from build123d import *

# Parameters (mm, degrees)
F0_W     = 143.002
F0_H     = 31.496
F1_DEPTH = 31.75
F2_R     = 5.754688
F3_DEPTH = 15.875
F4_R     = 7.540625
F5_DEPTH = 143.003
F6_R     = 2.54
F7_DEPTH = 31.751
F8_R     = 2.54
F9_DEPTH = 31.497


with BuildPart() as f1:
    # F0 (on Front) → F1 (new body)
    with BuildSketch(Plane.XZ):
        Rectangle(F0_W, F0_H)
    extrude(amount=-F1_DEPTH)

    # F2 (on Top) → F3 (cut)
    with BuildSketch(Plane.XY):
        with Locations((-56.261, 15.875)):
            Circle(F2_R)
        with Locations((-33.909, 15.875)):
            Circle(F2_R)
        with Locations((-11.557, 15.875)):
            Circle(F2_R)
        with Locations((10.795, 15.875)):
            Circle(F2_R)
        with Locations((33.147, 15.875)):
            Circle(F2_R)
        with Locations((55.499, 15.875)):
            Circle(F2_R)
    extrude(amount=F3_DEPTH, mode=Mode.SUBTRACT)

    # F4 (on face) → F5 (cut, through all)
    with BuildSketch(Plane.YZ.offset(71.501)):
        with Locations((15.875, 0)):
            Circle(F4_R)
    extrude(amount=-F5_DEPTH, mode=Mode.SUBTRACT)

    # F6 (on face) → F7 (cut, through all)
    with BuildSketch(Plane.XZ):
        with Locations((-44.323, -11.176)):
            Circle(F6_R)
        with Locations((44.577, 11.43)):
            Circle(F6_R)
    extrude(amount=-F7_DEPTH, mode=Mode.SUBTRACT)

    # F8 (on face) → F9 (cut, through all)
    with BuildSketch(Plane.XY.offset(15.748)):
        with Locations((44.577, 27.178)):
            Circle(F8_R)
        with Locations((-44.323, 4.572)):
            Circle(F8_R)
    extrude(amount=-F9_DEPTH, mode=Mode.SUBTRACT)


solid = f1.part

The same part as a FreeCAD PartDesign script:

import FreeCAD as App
import Part
import Sketcher
from FreeCAD import Vector
Q = App.Units.Quantity


def add_polygon(sketch, points):
    """Adds a closed chain of lines whose ends are joined by coincident constraints."""
    first, n = sketch.GeometryCount, len(points)
    for a, b in zip(points, points[1:] + points[:1]):
        sketch.addGeometry(Part.LineSegment(App.Vector(*a, 0), App.Vector(*b, 0)), False)
    for i in range(n):
        sketch.addConstraint(Sketcher.Constraint("Coincident", first + i, 2, first + (i + 1) % n, 1))

doc = App.newDocument("Part")
body = doc.addObject("PartDesign::Body", "Body")

sketch1 = doc.addObject("Sketcher::SketchObject", "Sketch")
body.addObject(sketch1)
sketch1.AttachmentSupport = (doc.XZ_Plane, [""])
sketch1.MapMode = "FlatFace"
add_polygon(sketch1, [(-72, 16), (-72, -16), (72, -16), (72, 16)])
sketch1.addConstraint([
    Sketcher.Constraint("Vertical", 0),
    Sketcher.Constraint("Horizontal", 1),
    Sketcher.Constraint("Vertical", 2),
    Sketcher.Constraint("Horizontal", 3),
    Sketcher.Constraint("Symmetric", 0, 2, 2, 2, -1, 1),
    Sketcher.Constraint("DistanceX", 1, 1, 1, 2, Q("5.63 in")),
    Sketcher.Constraint("DistanceY", 0, 2, 0, 1, Q("1.24 in")),
])
pad1 = doc.addObject("PartDesign::Pad", "Pad")
body.addObject(pad1)
pad1.Profile = sketch1
pad1.Length = Q("1.25 in")
pad1.Reversed = True

sketch2 = doc.addObject("Sketcher::SketchObject", "Sketch001")
body.addObject(sketch2)
sketch2.AttachmentSupport = (doc.XY_Plane, [""])
sketch2.MapMode = "FlatFace"
sketch2.addGeometry([
    Part.Circle(Vector(-56, 16, 0), Vector(0, 0, 1), 6),
    Part.Circle(Vector(-34, 16, 0), Vector(0, 0, 1), 6),
    Part.Circle(Vector(-12, 16, 0), Vector(0, 0, 1), 6),
    Part.Circle(Vector(11, 16, 0), Vector(0, 0, 1), 6),
    Part.Circle(Vector(33, 16, 0), Vector(0, 0, 1), 6),
    Part.Circle(Vector(55, 16, 0), Vector(0, 0, 1), 6),
], False)
sketch2.addConstraint([
    Sketcher.Constraint("Equal", 0, 1),
    Sketcher.Constraint("Equal", 1, 2),
    Sketcher.Constraint("Equal", 2, 3),
    Sketcher.Constraint("Equal", 3, 4),
    Sketcher.Constraint("Equal", 4, 5),
    Sketcher.Constraint("Horizontal", 0, 3, 1, 3),
    Sketcher.Constraint("Horizontal", 1, 3, 2, 3),
    Sketcher.Constraint("Horizontal", 2, 3, 3, 3),
    Sketcher.Constraint("Horizontal", 3, 3, 4, 3),
    Sketcher.Constraint("Horizontal", 4, 3, 5, 3),
    Sketcher.Constraint("Diameter", 0, Q("0.453125 in")),
    Sketcher.Constraint("DistanceX", 0, 3, 5, 3, Q("4.4 in")),
    Sketcher.Constraint("DistanceX", 0, 3, 1, 3, Q("0.88 in")),
    Sketcher.Constraint("DistanceX", 1, 3, 2, 3, Q("0.88 in")),
    Sketcher.Constraint("DistanceX", 2, 3, 3, 3, Q("0.88 in")),
    Sketcher.Constraint("DistanceX", 3, 3, 4, 3, Q("0.88 in")),
    Sketcher.Constraint("DistanceX", 0, 3, -1, 1, Q("2.215 in")),
    Sketcher.Constraint("DistanceY", -1, 1, 0, 3, Q("0.625 in")),
])
pocket1 = doc.addObject("PartDesign::Pocket", "Pocket")
body.addObject(pocket1)
pocket1.Profile = sketch2
pocket1.Length = Q("0.625 in")
pocket1.Reversed = True

sketch3 = doc.addObject("Sketcher::SketchObject", "Sketch002")
body.addObject(sketch3)
sketch3.AttachmentSupport = (doc.YZ_Plane, [""])
sketch3.MapMode = "FlatFace"
sketch3.AttachmentOffset = App.Placement(Vector(0, 0, 2.815 * 25.4), App.Rotation())
sketch3.addGeometry(Part.Circle(Vector(16, 0, 0), Vector(0, 0, 1), 8), False)
sketch3.addConstraint([
    Sketcher.Constraint("PointOnObject", 0, 3, -1),
    Sketcher.Constraint("Diameter", 0, Q("0.59375 in")),
    Sketcher.Constraint("DistanceX", -1, 1, 0, 3, Q("0.625 in")),
])
pocket2 = doc.addObject("PartDesign::Pocket", "Pocket001")
body.addObject(pocket2)
pocket2.Profile = sketch3
pocket2.Type = "ThroughAll"

sketch4 = doc.addObject("Sketcher::SketchObject", "Sketch003")
body.addObject(sketch4)
sketch4.AttachmentSupport = (doc.XZ_Plane, [""])
sketch4.MapMode = "FlatFace"
sketch4.addGeometry([
    Part.Circle(Vector(-44.3, -11.2, 0), Vector(0, 0, 1), 2.5),
    Part.Circle(Vector(44.6, 11.4, 0), Vector(0, 0, 1), 2.5),
], False)
sketch4.addConstraint([
    Sketcher.Constraint("Equal", 0, 1),
    Sketcher.Constraint("Diameter", 0, Q("0.2 in")),
    Sketcher.Constraint("DistanceX", 0, 3, 1, 3, Q("3.5 in")),
    Sketcher.Constraint("DistanceY", 0, 3, -1, 1, Q("0.44 in")),
    Sketcher.Constraint("DistanceY", -1, 1, 1, 3, Q("0.45 in")),
    Sketcher.Constraint("DistanceX", 0, 3, -1, 1, Q("1.745 in")),
])
pocket3 = doc.addObject("PartDesign::Pocket", "Pocket002")
body.addObject(pocket3)
pocket3.Profile = sketch4
pocket3.Type = "ThroughAll"

sketch5 = doc.addObject("Sketcher::SketchObject", "Sketch004")
body.addObject(sketch5)
sketch5.AttachmentSupport = (doc.XY_Plane, [""])
sketch5.MapMode = "FlatFace"
sketch5.AttachmentOffset = App.Placement(Vector(0, 0, 0.62 * 25.4), App.Rotation())
sketch5.addGeometry([
    Part.Circle(Vector(44.6, 27.2, 0), Vector(0, 0, 1), 2.5),
    Part.Circle(Vector(-44.3, 4.6, 0), Vector(0, 0, 1), 2.5),
], False)
sketch5.addConstraint([
    Sketcher.Constraint("Equal", 0, 1),
    Sketcher.Constraint("Diameter", 0, Q("0.2 in")),
    Sketcher.Constraint("DistanceX", 1, 3, 0, 3, Q("3.5 in")),
    Sketcher.Constraint("DistanceY", -1, 1, 0, 3, Q("1.07 in")),
    Sketcher.Constraint("DistanceY", -1, 1, 1, 3, Q("0.18 in")),
    Sketcher.Constraint("DistanceX", -1, 1, 0, 3, Q("1.755 in")),
])
pocket4 = doc.addObject("PartDesign::Pocket", "Pocket003")
body.addObject(pocket4)
pocket4.Profile = sketch5
pocket4.Type = "ThroughAll"

doc.recompute()
